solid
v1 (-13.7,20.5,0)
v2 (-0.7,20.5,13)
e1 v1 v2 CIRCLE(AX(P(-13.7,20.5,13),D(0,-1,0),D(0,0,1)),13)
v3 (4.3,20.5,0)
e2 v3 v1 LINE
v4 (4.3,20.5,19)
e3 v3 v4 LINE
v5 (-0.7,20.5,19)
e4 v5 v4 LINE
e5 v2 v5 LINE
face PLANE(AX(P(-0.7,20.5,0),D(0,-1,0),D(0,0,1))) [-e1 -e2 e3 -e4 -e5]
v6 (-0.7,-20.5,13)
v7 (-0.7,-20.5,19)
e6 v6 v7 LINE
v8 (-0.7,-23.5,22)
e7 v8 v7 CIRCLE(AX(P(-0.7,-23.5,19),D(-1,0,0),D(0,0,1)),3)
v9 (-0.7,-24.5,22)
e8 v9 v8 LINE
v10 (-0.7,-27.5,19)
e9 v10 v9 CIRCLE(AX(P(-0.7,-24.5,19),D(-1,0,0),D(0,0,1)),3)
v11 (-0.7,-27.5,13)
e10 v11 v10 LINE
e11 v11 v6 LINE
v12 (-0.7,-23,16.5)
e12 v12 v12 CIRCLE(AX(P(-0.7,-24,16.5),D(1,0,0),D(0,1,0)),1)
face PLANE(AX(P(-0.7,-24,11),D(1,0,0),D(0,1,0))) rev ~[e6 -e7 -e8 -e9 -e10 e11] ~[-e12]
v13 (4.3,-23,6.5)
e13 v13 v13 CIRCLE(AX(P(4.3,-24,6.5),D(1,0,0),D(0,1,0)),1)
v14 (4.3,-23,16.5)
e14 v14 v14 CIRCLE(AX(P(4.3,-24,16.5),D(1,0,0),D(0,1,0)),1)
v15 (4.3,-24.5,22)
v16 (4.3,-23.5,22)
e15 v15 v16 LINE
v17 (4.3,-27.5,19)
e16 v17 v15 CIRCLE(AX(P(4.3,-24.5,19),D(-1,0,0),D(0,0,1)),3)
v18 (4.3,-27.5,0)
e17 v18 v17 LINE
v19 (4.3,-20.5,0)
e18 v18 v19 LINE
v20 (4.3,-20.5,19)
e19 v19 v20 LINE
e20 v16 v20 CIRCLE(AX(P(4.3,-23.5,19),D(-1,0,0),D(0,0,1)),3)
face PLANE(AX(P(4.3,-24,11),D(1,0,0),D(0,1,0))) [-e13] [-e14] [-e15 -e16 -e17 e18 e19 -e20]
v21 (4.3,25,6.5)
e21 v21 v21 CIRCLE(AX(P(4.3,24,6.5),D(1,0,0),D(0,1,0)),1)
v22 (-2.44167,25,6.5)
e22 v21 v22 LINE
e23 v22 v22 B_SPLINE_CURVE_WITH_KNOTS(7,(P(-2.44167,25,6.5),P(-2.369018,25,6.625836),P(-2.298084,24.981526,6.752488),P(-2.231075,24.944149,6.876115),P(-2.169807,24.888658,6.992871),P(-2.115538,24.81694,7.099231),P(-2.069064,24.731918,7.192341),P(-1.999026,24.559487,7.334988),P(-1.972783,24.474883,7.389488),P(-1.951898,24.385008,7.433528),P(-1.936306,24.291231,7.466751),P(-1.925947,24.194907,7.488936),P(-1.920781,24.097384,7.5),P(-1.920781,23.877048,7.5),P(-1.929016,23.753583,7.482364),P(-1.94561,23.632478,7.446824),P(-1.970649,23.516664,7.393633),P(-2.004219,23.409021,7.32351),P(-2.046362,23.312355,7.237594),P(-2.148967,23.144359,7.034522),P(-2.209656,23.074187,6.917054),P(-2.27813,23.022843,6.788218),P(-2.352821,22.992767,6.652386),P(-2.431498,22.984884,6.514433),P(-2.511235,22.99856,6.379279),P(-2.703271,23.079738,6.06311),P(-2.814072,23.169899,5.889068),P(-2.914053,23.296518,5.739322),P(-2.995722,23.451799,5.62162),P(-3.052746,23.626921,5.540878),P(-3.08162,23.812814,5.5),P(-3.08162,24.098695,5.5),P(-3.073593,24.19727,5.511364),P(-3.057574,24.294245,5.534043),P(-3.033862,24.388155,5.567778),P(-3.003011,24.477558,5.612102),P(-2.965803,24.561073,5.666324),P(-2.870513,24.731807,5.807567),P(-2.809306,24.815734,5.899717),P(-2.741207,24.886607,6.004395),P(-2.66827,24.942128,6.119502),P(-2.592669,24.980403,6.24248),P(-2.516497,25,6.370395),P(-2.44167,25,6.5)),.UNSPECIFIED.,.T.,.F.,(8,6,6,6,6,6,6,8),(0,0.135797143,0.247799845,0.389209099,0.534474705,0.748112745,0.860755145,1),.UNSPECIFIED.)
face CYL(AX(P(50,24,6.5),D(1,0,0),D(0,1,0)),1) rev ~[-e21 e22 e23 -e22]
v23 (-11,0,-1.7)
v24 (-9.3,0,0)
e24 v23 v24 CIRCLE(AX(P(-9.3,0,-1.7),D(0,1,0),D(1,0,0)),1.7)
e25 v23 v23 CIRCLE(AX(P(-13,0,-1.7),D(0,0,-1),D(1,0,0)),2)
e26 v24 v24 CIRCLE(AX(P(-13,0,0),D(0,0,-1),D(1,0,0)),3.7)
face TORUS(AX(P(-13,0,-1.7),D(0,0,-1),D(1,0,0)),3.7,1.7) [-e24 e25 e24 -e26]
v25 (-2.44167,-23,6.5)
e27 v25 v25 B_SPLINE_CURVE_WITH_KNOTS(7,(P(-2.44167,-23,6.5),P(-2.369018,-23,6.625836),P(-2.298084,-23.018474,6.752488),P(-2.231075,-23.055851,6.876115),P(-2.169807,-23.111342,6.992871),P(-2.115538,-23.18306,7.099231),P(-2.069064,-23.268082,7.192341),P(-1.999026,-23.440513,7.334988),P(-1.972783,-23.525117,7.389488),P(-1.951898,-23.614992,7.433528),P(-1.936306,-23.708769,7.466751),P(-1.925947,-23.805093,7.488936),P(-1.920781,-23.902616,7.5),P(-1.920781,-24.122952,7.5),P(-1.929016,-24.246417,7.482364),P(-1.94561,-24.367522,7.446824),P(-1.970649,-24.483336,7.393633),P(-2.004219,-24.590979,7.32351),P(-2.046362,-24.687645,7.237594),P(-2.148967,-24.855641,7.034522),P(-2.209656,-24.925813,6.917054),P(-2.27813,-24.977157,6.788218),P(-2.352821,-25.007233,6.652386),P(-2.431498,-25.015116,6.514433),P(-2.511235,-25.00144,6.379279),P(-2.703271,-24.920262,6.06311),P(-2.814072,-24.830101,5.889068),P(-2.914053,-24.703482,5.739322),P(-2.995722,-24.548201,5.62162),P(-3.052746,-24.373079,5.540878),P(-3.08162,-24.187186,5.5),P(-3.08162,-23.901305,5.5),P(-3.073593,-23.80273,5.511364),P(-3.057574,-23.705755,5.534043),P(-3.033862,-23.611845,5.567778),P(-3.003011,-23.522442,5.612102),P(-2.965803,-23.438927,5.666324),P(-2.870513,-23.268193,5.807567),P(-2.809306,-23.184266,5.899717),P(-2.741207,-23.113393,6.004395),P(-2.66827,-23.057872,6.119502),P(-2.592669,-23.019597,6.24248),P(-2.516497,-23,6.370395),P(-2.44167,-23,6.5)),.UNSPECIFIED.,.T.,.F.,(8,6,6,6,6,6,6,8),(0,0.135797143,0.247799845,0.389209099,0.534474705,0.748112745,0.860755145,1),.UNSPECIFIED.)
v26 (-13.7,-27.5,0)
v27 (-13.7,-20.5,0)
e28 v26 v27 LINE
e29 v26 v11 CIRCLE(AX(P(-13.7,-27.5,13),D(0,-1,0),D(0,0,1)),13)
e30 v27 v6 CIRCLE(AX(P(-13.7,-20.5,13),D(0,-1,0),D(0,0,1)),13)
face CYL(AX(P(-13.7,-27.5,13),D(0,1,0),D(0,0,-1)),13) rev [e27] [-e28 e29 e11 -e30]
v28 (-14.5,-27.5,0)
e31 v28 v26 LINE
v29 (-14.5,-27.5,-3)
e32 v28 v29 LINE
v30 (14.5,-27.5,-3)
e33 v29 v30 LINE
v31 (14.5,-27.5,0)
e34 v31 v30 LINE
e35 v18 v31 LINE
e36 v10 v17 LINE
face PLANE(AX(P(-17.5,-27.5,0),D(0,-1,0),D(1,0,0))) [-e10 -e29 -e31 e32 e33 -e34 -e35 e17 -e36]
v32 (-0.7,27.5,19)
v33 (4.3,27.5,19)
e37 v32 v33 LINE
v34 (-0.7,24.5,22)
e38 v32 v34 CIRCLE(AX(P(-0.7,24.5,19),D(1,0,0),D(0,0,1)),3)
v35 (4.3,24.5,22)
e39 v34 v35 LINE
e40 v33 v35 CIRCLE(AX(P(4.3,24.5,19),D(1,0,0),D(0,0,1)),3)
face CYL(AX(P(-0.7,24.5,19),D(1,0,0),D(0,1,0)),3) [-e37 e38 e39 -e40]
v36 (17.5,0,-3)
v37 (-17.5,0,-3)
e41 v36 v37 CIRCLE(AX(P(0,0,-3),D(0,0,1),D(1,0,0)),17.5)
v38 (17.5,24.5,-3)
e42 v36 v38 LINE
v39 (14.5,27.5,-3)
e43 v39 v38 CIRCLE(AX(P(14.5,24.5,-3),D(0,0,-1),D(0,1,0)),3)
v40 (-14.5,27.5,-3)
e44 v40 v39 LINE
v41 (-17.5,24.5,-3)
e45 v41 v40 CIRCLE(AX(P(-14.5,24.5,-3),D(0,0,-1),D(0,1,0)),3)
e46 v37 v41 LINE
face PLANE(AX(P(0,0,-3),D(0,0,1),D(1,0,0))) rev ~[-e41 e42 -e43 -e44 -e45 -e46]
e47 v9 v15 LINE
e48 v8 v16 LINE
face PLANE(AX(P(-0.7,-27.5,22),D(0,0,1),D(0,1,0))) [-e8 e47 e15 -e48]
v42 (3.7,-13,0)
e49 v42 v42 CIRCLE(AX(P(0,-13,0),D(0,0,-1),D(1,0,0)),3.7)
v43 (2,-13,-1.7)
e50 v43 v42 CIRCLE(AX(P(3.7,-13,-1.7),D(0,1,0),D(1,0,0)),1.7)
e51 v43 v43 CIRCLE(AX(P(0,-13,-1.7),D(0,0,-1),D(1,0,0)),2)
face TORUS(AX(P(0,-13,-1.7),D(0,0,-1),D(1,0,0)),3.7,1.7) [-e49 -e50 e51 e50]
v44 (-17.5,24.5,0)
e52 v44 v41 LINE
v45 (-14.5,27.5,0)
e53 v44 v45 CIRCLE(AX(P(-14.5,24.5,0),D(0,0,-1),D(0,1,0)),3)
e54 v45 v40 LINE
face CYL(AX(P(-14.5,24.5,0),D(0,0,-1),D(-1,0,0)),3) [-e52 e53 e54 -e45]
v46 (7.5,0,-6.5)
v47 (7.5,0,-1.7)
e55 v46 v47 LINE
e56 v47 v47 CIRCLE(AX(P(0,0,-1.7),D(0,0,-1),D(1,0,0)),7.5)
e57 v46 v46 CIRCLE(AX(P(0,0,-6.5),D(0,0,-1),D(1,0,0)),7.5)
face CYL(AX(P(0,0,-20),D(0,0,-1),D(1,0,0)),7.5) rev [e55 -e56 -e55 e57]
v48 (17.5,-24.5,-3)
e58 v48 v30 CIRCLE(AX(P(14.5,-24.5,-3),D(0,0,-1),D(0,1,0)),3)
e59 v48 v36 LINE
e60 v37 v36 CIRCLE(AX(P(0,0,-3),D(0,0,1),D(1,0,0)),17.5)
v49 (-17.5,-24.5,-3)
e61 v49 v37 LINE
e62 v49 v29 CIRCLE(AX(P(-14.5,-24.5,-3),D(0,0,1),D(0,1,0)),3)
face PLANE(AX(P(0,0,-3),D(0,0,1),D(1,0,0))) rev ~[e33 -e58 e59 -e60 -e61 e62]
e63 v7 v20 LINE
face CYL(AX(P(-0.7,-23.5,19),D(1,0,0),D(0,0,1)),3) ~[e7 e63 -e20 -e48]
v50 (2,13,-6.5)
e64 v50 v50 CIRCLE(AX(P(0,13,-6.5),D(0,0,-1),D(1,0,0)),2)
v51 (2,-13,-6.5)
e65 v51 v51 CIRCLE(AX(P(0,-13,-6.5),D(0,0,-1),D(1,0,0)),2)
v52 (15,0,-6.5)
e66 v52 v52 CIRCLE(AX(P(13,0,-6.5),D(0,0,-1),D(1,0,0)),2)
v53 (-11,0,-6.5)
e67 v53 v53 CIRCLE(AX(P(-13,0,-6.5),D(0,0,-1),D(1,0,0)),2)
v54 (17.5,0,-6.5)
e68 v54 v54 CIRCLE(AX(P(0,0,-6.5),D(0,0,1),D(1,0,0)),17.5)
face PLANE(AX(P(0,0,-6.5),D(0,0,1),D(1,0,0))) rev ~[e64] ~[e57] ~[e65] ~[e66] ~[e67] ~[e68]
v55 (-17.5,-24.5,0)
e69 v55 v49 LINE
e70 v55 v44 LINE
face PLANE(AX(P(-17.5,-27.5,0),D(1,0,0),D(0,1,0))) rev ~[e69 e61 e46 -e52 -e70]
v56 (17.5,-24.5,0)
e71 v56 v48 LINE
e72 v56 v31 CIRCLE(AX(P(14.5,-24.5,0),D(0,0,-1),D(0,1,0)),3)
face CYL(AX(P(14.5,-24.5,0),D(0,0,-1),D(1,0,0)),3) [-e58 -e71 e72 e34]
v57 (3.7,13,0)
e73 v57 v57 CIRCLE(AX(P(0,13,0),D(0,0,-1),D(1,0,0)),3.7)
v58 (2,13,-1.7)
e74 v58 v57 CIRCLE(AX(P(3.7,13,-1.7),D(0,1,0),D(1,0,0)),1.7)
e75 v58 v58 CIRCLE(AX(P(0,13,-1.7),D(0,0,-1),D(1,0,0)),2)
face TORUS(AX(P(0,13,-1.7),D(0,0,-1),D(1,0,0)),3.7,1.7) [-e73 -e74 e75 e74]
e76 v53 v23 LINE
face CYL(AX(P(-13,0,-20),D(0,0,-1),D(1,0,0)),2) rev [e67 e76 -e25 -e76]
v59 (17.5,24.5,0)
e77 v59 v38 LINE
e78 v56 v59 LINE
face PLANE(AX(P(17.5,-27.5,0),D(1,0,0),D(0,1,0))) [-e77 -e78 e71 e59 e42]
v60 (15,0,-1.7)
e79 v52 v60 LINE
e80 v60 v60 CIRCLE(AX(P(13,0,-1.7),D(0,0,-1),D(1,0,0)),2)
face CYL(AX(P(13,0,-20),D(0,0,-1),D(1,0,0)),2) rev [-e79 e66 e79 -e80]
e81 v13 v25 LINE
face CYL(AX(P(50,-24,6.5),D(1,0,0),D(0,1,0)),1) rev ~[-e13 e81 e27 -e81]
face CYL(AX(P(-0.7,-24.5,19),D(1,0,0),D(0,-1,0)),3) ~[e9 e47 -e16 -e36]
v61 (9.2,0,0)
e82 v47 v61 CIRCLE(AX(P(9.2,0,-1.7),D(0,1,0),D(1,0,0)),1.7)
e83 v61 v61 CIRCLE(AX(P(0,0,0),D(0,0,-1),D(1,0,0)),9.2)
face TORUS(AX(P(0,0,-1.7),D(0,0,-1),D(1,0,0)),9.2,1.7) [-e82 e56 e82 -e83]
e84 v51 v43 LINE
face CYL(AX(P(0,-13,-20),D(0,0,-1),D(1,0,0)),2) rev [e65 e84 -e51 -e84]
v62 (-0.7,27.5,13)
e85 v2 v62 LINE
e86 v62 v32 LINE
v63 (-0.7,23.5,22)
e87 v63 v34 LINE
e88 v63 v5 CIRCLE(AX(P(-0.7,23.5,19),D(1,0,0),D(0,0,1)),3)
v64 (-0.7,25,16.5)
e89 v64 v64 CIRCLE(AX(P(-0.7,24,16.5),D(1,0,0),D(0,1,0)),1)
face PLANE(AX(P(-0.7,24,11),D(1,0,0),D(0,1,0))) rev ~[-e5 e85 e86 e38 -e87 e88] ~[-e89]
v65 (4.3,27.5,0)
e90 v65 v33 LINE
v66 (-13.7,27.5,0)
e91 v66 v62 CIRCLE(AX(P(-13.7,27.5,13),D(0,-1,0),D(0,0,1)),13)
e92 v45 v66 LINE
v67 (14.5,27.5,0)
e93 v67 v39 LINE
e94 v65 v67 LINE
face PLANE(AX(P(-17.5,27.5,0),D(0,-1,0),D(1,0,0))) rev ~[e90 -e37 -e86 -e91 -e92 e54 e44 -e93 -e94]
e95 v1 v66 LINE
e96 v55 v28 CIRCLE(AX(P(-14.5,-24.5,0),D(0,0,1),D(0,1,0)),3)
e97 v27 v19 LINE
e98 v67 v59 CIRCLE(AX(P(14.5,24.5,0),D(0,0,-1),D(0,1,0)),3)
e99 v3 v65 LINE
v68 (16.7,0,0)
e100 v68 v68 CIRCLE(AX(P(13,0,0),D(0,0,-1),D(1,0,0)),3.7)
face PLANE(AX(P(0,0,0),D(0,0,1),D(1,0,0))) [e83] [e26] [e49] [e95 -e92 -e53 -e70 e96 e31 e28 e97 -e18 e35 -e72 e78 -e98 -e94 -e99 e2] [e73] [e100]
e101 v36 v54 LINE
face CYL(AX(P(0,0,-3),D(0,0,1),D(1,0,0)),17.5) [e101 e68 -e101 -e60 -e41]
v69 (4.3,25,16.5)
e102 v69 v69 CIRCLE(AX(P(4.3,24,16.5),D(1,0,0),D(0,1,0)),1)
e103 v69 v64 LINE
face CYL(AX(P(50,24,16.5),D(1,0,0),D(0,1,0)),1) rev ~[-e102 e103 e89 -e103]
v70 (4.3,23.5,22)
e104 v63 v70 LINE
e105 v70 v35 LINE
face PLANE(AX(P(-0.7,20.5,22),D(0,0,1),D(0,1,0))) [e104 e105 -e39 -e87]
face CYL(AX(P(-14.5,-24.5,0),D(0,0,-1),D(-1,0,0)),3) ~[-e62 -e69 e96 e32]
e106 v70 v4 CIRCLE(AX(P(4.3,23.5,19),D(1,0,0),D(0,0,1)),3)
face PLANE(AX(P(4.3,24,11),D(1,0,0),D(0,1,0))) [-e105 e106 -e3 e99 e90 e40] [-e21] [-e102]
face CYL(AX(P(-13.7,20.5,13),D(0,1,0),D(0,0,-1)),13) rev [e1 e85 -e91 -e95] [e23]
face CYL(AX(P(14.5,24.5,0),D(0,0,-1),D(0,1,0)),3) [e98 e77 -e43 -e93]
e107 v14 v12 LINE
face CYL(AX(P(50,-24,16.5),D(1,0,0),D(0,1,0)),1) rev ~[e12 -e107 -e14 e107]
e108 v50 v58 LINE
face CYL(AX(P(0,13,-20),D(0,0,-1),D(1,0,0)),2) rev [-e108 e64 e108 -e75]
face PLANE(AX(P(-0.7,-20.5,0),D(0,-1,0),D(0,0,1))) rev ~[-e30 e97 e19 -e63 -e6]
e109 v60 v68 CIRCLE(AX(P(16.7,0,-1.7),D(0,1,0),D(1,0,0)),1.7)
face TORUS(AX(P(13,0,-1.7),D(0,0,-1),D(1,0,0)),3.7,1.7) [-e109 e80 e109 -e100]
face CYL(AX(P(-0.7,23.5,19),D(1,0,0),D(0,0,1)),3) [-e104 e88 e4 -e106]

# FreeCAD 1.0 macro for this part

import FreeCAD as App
import Part
import Sketcher
from FreeCAD import Vector
Q = App.Units.Quantity


def edges_at(feature, points):
    """Names of the edges that pass closest to the given points."""
    edges = feature.Shape.Edges
    near = lambda p: min(range(len(edges)), key=lambda i: edges[i].distToShape(Part.Vertex(*p))[0])
    return sorted({f"Edge{near(p) + 1}" for p in points})


def add_polygon(sketch, points):
    """Adds a closed chain of lines whose ends are joined by coincident constraints."""
    first, n = sketch.GeometryCount, len(points)
    for a, b in zip(points, points[1:] + points[:1]):
        sketch.addGeometry(Part.LineSegment(App.Vector(*a, 0), App.Vector(*b, 0)), False)
    for i in range(n):
        sketch.addConstraint(Sketcher.Constraint("Coincident", first + i, 2, first + (i + 1) % n, 1))

doc = App.newDocument("Part")
body = doc.addObject("PartDesign::Body", "Body")

sketch1 = doc.addObject("Sketcher::SketchObject", "Sketch")
body.addObject(sketch1)
sketch1.AttachmentSupport = (doc.XY_Plane, [""])
sketch1.MapMode = "FlatFace"
add_polygon(sketch1, [(-18, 28), (-18, -28), (18, -28), (18, 28)])
sketch1.addConstraint([
    Sketcher.Constraint("Vertical", 0),
    Sketcher.Constraint("Horizontal", 1),
    Sketcher.Constraint("Vertical", 2),
    Sketcher.Constraint("Horizontal", 3),
    Sketcher.Constraint("Symmetric", 0, 2, 2, 2, -1, 1),
    Sketcher.Constraint("DistanceX", 1, 1, 1, 2, Q("35 mm")),
    Sketcher.Constraint("DistanceY", 0, 2, 0, 1, Q("55 mm")),
])
pad1 = doc.addObject("PartDesign::Pad", "Pad")
body.addObject(pad1)
pad1.Profile = sketch1
pad1.Length = 3
pad1.Reversed = True

sketch2 = doc.addObject("Sketcher::SketchObject", "Sketch001")
body.addObject(sketch2)
sketch2.AttachmentSupport = (doc.YZ_Plane, [""])
sketch2.MapMode = "FlatFace"
sketch2.AttachmentOffset = App.Placement(Vector(0, 0, -0.7), App.Rotation())
add_polygon(sketch2, [(-28, 22), (-28, 0), (-20, 0), (-20, 22)])
add_polygon(sketch2, [(20, 22), (20, 0), (28, 0), (28, 22)])
sketch2.addConstraint([
    Sketcher.Constraint("Vertical", 0),
    Sketcher.Constraint("Horizontal", 1),
    Sketcher.Constraint("Vertical", 2),
    Sketcher.Constraint("Horizontal", 3),
    Sketcher.Constraint("Vertical", 4),
    Sketcher.Constraint("Horizontal", 5),
    Sketcher.Constraint("Vertical", 6),
    Sketcher.Constraint("Horizontal", 7),
    Sketcher.Constraint("Symmetric", 1, 2, 4, 2, -1, 1),
    Sketcher.Constraint("Symmetric", 0, 2, 5, 2, -2),
    Sketcher.Constraint("Horizontal", 3, 2, 6, 2),
    Sketcher.Constraint("DistanceX", 1, 1, 1, 2, Q("7 mm")),
    Sketcher.Constraint("DistanceY", 0, 2, 0, 1, Q("22 mm")),
    Sketcher.Constraint("DistanceX", 1, 2, 4, 2, Q("41 mm")),
])
pad2 = doc.addObject("PartDesign::Pad", "Pad001")
body.addObject(pad2)
pad2.Profile = sketch2
pad2.Length = 5

sketch3 = doc.addObject("Sketcher::SketchObject", "Sketch002")
body.addObject(sketch3)
sketch3.AttachmentSupport = (doc.XY_Plane, [""])
sketch3.MapMode = "FlatFace"
sketch3.AttachmentOffset = App.Placement(Vector(0, 0, -3), App.Rotation())
sketch3.addGeometry([
    Part.Circle(Vector(0, 0, 0), Vector(0, 0, 1), 17.5),
    Part.Circle(Vector(0, -13, 0), Vector(0, 0, 1), 1.9),
    Part.Circle(Vector(-13, 0, 0), Vector(0, 0, 1), 1.9),
    Part.Circle(Vector(0, 0, 0), Vector(0, 0, 1), 7.3),
    Part.Circle(Vector(13, 0, 0), Vector(0, 0, 1), 1.9),
    Part.Circle(Vector(0, 13, 0), Vector(0, 0, 1), 1.9),
], False)
sketch3.addConstraint([
    Sketcher.Constraint("Coincident", 0, 3, -1, 1),
    Sketcher.Constraint("Coincident", 3, 3, -1, 1),
    Sketcher.Constraint("Equal", 1, 2),
    Sketcher.Constraint("Equal", 2, 4),
    Sketcher.Constraint("Equal", 4, 5),
    Sketcher.Constraint("Symmetric", 2, 3, 4, 3, -1, 1),
    Sketcher.Constraint("Symmetric", 1, 3, 5, 3, -1, 1),
    Sketcher.Constraint("PointOnObject", 1, 3, -2),
    Sketcher.Constraint("PointOnObject", 2, 3, -1),
    Sketcher.Constraint("Diameter", 0, Q("35 mm")),
    Sketcher.Constraint("Diameter", 1, Q("3.8 mm")),
    Sketcher.Constraint("Diameter", 3, Q("14.7 mm")),
    Sketcher.Constraint("DistanceY", 1, 3, -1, 1, Q("13 mm")),
    Sketcher.Constraint("DistanceX", 2, 3, -1, 1, Q("13 mm")),
])
pad3 = doc.addObject("PartDesign::Pad", "Pad002")
body.addObject(pad3)
pad3.Profile = sketch3
pad3.Length = 3.5
pad3.Reversed = True

sketch4 = doc.addObject("Sketcher::SketchObject", "Sketch003")
body.addObject(sketch4)
sketch4.AttachmentSupport = (doc.XY_Plane, [""])
sketch4.MapMode = "FlatFace"
sketch4.AttachmentOffset = App.Placement(Vector(0, 0, -20), App.Rotation())
sketch4.addGeometry([
    Part.Circle(Vector(0, 0, 0), Vector(0, 0, 1), 7.5),
    Part.Circle(Vector(-13, 0, 0), Vector(0, 0, 1), 2),
    Part.Circle(Vector(0, 13, 0), Vector(0, 0, 1), 2),
    Part.Circle(Vector(13, 0, 0), Vector(0, 0, 1), 2),
    Part.Circle(Vector(0, -13, 0), Vector(0, 0, 1), 2),
], False)
sketch4.addConstraint([
    Sketcher.Constraint("Coincident", 0, 3, -1, 1),
    Sketcher.Constraint("Equal", 1, 2),
    Sketcher.Constraint("Equal", 2, 3),
    Sketcher.Constraint("Equal", 3, 4),
    Sketcher.Constraint("Symmetric", 1, 3, 3, 3, -1, 1),
    Sketcher.Constraint("Symmetric", 2, 3, 4, 3, -1, 1),
    Sketcher.Constraint("PointOnObject", 1, 3, -1),
    Sketcher.Constraint("PointOnObject", 2, 3, -2),
    Sketcher.Constraint("Diameter", 0, Q("15 mm")),
    Sketcher.Constraint("Diameter", 1, Q("4 mm")),
    Sketcher.Constraint("DistanceX", 1, 3, -1, 1, Q("13 mm")),
    Sketcher.Constraint("DistanceY", -1, 1, 2, 3, Q("13 mm")),
])
pocket1 = doc.addObject("PartDesign::Pocket", "Pocket")
body.addObject(pocket1)
pocket1.Profile = sketch4
pocket1.Type = "ThroughAll"
pocket1.Reversed = True
doc.recompute()

fillet = doc.addObject("PartDesign::Fillet", "Fillet")
body.addObject(fillet)
fillet.Base = (pocket1, edges_at(pocket1, [
    (1.8, 27.5, 22),
    (1.8, 20.5, 22),
    (1.8, -20.5, 22),
    (1.8, -27.5, 22),
    (-17.5, -27.5, -1.5),
    (-17.5, 27.5, -1.5),
    (17.5, 27.5, -1.5),
    (17.5, -27.5, -1.5),
]))
fillet.Radius = 3
doc.recompute()

fillet2 = doc.addObject("PartDesign::Fillet", "Fillet001")
body.addObject(fillet2)
fillet2.Base = (fillet, edges_at(fillet, [(-0.7, 24, 0), (-0.7, -24, 0)]))
fillet2.Radius = 13
doc.recompute()

fillet3 = doc.addObject("PartDesign::Fillet", "Fillet002")
body.addObject(fillet3)
fillet3.Base = (fillet2, edges_at(fillet2, [
    (11, 0, 0),
    (-7.5, 0, 0),
    (-15, 0, 0),
    (-2, -13, 0),
    (-2, 13, 0),
]))
fillet3.Radius = 1.7

sketch5 = doc.addObject("Sketcher::SketchObject", "Sketch004")
body.addObject(sketch5)
sketch5.AttachmentSupport = (doc.YZ_Plane, [""])
sketch5.MapMode = "FlatFace"
sketch5.AttachmentOffset = App.Placement(Vector(0, 0, 50), App.Rotation())
sketch5.addGeometry([
    Part.Circle(Vector(-24, 16.5, 0), Vector(0, 0, 1), 1),
    Part.Circle(Vector(-24, 6.5, 0), Vector(0, 0, 1), 1),
    Part.Circle(Vector(24, 16.5, 0), Vector(0, 0, 1), 1),
    Part.Circle(Vector(24, 6.5, 0), Vector(0, 0, 1), 1),
], False)
sketch5.addConstraint([
    Sketcher.Constraint("Equal", 0, 1),
    Sketcher.Constraint("Equal", 1, 2),
    Sketcher.Constraint("Equal", 2, 3),
    Sketcher.Constraint("Symmetric", 0, 3, 2, 3, -2),
    Sketcher.Constraint("Symmetric", 1, 3, 3, 3, -2),
    Sketcher.Constraint("Vertical", 0, 3, 1, 3),
    Sketcher.Constraint("Diameter", 0, Q("2 mm")),
    Sketcher.Constraint("DistanceX", 0, 3, -1, 1, Q("24 mm")),
    Sketcher.Constraint("DistanceY", 1, 3, 0, 3, Q("10 mm")),
    Sketcher.Constraint("DistanceY", -1, 1, 0, 3, Q("16.5 mm")),
])
pocket2 = doc.addObject("PartDesign::Pocket", "Pocket001")
body.addObject(pocket2)
pocket2.Profile = sketch5
pocket2.Type = "ThroughAll"
pocket2.Midplane = True

doc.recompute()
